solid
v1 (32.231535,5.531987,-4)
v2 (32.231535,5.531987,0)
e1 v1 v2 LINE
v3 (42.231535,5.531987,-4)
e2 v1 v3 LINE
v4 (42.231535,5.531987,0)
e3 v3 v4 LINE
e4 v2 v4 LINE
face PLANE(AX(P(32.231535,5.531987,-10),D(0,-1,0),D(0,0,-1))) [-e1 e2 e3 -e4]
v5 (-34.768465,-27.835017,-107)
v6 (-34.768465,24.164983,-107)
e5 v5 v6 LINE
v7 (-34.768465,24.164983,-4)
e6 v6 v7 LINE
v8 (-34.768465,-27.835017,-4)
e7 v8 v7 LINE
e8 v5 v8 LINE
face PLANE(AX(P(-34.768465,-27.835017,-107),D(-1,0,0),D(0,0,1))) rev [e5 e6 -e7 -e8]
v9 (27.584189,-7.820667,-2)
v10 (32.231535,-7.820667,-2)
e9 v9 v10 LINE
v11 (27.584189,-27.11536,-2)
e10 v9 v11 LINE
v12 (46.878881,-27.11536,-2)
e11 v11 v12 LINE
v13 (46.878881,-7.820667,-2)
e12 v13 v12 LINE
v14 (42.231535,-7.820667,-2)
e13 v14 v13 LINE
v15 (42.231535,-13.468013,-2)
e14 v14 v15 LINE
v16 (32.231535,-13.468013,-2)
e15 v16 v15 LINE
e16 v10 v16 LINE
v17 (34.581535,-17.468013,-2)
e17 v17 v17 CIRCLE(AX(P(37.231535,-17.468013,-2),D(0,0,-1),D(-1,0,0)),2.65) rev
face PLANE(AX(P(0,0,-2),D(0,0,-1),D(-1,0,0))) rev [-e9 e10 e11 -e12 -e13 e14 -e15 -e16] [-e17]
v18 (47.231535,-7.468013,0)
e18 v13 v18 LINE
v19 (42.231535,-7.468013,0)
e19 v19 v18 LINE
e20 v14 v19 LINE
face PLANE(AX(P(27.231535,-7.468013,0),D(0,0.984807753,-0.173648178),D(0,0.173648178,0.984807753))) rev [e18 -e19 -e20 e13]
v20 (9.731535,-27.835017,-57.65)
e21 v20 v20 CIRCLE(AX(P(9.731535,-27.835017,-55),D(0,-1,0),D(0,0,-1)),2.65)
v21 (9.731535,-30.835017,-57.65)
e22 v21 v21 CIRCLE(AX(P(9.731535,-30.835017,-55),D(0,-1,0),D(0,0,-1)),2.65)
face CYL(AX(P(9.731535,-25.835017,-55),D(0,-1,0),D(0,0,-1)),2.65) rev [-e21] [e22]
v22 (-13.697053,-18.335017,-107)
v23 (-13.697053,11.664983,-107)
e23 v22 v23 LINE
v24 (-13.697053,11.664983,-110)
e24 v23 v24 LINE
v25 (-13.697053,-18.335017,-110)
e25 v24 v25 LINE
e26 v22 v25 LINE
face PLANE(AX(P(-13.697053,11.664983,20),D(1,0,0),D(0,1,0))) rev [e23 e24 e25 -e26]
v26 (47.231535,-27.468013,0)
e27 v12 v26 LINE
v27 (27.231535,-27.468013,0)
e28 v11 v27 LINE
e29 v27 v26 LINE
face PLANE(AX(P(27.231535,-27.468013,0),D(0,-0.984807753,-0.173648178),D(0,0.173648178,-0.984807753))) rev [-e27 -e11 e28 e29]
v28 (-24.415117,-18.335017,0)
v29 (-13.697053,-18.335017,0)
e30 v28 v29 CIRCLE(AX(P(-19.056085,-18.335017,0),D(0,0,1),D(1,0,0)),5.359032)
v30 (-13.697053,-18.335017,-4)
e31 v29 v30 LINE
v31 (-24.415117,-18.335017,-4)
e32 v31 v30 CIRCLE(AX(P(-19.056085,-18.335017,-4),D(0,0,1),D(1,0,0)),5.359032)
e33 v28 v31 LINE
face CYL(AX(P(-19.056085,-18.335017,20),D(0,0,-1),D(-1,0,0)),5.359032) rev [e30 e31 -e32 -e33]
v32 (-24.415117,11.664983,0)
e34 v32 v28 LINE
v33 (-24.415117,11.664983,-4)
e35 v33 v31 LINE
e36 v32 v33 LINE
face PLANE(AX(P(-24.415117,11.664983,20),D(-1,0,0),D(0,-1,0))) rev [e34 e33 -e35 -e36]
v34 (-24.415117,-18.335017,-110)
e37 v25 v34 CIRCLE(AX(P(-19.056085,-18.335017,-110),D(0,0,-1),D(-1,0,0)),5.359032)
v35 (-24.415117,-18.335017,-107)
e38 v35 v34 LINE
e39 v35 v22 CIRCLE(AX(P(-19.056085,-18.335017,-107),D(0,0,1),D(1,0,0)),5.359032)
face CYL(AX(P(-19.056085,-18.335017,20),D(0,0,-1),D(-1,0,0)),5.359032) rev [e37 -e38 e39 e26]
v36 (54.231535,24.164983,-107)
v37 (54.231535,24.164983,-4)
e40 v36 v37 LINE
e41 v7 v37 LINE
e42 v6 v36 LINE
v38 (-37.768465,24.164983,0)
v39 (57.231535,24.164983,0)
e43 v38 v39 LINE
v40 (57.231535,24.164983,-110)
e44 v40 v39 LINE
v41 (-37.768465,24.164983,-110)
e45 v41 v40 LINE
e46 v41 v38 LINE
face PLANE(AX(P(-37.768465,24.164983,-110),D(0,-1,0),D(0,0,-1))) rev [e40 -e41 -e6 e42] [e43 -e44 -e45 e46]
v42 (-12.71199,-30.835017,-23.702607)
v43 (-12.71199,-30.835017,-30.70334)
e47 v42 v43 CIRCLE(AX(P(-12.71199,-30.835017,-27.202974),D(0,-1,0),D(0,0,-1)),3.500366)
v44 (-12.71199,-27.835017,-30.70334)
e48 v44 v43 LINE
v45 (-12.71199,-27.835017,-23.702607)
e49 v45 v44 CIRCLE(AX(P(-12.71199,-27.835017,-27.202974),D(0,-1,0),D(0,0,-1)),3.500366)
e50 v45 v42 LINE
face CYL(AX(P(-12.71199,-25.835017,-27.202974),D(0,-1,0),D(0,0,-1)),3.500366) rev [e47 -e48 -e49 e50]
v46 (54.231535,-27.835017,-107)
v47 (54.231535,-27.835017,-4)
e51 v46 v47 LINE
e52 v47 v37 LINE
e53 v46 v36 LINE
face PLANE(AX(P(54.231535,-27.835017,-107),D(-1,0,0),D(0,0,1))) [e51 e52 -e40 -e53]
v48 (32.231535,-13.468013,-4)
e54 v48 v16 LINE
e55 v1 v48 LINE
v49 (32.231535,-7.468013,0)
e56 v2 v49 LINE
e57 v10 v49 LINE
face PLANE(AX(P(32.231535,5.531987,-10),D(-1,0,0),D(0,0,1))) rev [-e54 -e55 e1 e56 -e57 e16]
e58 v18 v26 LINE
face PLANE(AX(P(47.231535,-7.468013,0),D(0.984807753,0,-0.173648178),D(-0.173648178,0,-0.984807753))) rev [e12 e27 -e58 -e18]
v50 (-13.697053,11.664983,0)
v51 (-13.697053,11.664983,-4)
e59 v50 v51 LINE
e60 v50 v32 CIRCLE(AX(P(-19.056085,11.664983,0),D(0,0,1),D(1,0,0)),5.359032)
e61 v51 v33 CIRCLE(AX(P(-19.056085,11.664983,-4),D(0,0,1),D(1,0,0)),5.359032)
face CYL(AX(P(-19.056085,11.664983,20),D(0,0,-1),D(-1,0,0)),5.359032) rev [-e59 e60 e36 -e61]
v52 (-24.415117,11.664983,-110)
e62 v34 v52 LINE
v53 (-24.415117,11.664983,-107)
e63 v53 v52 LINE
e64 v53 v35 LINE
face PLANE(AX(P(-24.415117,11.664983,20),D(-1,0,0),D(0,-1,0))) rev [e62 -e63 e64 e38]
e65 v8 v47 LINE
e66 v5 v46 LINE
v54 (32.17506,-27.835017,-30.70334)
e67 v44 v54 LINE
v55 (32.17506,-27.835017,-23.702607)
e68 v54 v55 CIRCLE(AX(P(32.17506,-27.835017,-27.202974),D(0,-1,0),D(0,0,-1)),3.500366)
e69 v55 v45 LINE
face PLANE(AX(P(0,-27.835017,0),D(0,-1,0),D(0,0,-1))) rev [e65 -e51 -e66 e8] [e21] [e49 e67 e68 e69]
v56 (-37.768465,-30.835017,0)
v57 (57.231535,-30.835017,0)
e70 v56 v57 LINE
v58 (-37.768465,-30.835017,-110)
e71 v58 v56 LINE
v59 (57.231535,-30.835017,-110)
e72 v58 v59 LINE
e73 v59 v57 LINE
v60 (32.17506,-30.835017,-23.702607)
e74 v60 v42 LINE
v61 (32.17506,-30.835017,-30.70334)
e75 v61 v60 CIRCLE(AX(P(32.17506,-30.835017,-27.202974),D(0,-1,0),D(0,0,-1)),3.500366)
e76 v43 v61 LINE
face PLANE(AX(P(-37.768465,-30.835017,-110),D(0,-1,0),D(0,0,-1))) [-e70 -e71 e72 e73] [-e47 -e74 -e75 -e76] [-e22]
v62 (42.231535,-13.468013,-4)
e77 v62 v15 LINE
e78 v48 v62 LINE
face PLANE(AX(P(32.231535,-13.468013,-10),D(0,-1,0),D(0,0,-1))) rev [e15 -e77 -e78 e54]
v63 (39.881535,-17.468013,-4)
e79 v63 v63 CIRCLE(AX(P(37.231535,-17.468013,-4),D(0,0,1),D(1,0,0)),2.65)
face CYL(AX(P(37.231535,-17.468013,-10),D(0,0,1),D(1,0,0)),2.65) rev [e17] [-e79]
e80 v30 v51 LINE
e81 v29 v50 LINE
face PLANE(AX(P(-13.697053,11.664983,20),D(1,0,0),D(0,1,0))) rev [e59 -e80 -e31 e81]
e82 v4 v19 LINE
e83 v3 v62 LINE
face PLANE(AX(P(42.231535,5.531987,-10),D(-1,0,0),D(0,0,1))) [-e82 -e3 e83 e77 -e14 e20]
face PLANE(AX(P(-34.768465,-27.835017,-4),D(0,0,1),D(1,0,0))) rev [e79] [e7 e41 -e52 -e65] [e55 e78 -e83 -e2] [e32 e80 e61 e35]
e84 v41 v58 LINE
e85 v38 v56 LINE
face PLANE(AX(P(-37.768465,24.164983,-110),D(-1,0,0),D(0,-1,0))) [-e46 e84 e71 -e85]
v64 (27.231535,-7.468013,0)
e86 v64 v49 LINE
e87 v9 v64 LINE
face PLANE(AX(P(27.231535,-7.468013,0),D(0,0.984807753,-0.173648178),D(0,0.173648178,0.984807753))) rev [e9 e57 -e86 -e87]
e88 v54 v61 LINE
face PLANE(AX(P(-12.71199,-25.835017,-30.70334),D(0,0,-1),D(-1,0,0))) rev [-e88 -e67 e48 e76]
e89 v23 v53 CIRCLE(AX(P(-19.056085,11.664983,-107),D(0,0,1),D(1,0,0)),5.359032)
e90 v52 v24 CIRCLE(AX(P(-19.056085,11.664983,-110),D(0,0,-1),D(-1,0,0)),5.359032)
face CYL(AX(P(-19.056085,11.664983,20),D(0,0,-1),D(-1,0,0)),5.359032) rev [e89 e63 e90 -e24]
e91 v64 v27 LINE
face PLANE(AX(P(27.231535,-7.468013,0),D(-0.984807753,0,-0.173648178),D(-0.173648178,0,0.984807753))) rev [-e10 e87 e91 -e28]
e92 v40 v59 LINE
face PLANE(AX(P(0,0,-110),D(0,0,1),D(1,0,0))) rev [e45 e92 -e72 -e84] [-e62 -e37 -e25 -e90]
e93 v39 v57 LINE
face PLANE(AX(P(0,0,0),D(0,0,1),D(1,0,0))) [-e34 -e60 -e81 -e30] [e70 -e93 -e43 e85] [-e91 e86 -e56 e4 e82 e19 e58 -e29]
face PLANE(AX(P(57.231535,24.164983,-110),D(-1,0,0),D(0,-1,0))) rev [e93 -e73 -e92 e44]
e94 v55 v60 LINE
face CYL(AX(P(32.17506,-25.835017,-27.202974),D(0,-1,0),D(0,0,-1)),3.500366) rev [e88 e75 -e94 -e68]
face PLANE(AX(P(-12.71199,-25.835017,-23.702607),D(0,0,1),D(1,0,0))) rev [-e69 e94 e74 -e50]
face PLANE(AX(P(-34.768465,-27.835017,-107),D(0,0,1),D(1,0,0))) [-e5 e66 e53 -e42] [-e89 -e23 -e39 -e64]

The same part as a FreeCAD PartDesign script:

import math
import FreeCAD as App
import Part
import Sketcher

V = App.Vector
Q = App.Units.Quantity


def faces_at(feature, points):
    """Names of the faces that lie closest to the given points."""
    faces = feature.Shape.Faces
    near = lambda p: min(range(len(faces)), key=lambda i: faces[i].distToShape(Part.Vertex(*p))[0])
    return sorted({f"Face{near(p) + 1}" for p in points})


def add_polygon(sketch, points):
    """Adds a closed chain of lines whose ends are joined by coincident constraints."""
    first, n = sketch.GeometryCount, len(points)
    for a, b in zip(points, points[1:] + points[:1]):
        sketch.addGeometry(Part.LineSegment(App.Vector(*a, 0), App.Vector(*b, 0)), False)
    for i in range(n):
        sketch.addConstraint(Sketcher.Constraint("Coincident", first + i, 2, first + (i + 1) % n, 1))

doc = App.newDocument("Part")
body = doc.addObject("PartDesign::Body", "Body")

sketch1 = body.newObject("Sketcher::SketchObject", "Sketch")
sketch1.AttachmentSupport = (doc.getObject("XY_Plane"), [""])
sketch1.MapMode = "FlatFace"
add_polygon(sketch1, [(-38, 24), (-38, -31), (57, -31), (57, 24)])
sketch1.addConstraint([
    Sketcher.Constraint("Vertical", 0),
    Sketcher.Constraint("Horizontal", 1),
    Sketcher.Constraint("Vertical", 2),
    Sketcher.Constraint("Horizontal", 3),
    Sketcher.Constraint("DistanceX", 1, 1, 1, 2, Q("95 mm")),
    Sketcher.Constraint("DistanceY", 0, 2, 0, 1, Q("55 mm")),
    Sketcher.Constraint("DistanceX", 0, 2, -1, 1, Q("37.768465 mm")),
    Sketcher.Constraint("DistanceY", 0, 2, -1, 1, Q("30.835017 mm")),
])
pad1 = body.newObject("PartDesign::Pad", "Pad")
pad1.Profile = sketch1
pad1.Length = 110
pad1.Reversed = True

sketch2 = body.newObject("Sketcher::SketchObject", "Sketch001")
sketch2.AttachmentSupport = (doc.getObject("XZ_Plane"), [""])
sketch2.MapMode = "FlatFace"
sketch2.AttachmentOffset = App.Placement(V(0, 0, -24.164983), App.Rotation())
add_polygon(sketch2, [(-35, -107), (-35, -4), (54, -4), (54, -107)])
sketch2.addConstraint([
    Sketcher.Constraint("Vertical", 0),
    Sketcher.Constraint("Horizontal", 1),
    Sketcher.Constraint("Vertical", 2),
    Sketcher.Constraint("Horizontal", 3),
    Sketcher.Constraint("DistanceX", 1, 1, 1, 2, Q("89 mm")),
    Sketcher.Constraint("DistanceY", 0, 1, 0, 2, Q("103 mm")),
    Sketcher.Constraint("DistanceY", 0, 2, -1, 1, Q("4 mm")),
    Sketcher.Constraint("DistanceX", 0, 2, -1, 1, Q("34.768465 mm")),
])
pocket1 = body.newObject("PartDesign::Pocket", "Pocket")
pocket1.Profile = sketch2
pocket1.Length = 52
pocket1.Reversed = True

sketch3 = body.newObject("Sketcher::SketchObject", "Sketch002")
sketch3.AttachmentSupport = (doc.getObject("XY_Plane"), [""])
sketch3.MapMode = "FlatFace"
add_polygon(sketch3, [(32, 6), (32, -13), (42, -13), (42, 6)])
sketch3.addConstraint([
    Sketcher.Constraint("Vertical", 0),
    Sketcher.Constraint("Horizontal", 1),
    Sketcher.Constraint("Vertical", 2),
    Sketcher.Constraint("Horizontal", 3),
    Sketcher.Constraint("DistanceX", 1, 1, 1, 2, Q("10 mm")),
    Sketcher.Constraint("DistanceY", 0, 2, 0, 1, Q("19 mm")),
    Sketcher.Constraint("DistanceX", -1, 1, 0, 2, Q("32.231535 mm")),
    Sketcher.Constraint("DistanceY", 0, 2, -1, 1, Q("13.468013 mm")),
])
pocket2 = body.newObject("PartDesign::Pocket", "Pocket001")
pocket2.Profile = sketch3
pocket2.Length = 10

sketch4 = body.newObject("Sketcher::SketchObject", "Sketch003")
sketch4.AttachmentSupport = (doc.getObject("XY_Plane"), [""])
sketch4.MapMode = "FlatFace"
sketch4.addGeometry(Part.Circle(V(37.2, -17.5, 0), V(0, 0, 1), 2.6), False)
sketch4.addConstraint([
    Sketcher.Constraint("Diameter", 0, Q("5.3 mm")),
    Sketcher.Constraint("DistanceX", -1, 1, 0, 3, Q("37.231535 mm")),
    Sketcher.Constraint("DistanceY", 0, 3, -1, 1, Q("17.468013 mm")),
])
pocket3 = body.newObject("PartDesign::Pocket", "Pocket002")
pocket3.Profile = sketch4
pocket3.Length = 10
body2 = doc.addObject("PartDesign::Body", "Body001")

sketch5 = body2.newObject("Sketcher::SketchObject", "Sketch004")
sketch5.AttachmentSupport = (doc.getObject("XY_Plane001"), [""])
sketch5.MapMode = "FlatFace"
add_polygon(sketch5, [(27, -7), (27, -27), (47, -27), (47, -7)])
sketch5.addConstraint([
    Sketcher.Constraint("Vertical", 0),
    Sketcher.Constraint("Horizontal", 1),
    Sketcher.Constraint("Vertical", 2),
    Sketcher.Constraint("Horizontal", 3),
    Sketcher.Constraint("Equal", 3, 0),
    Sketcher.Constraint("DistanceX", 1, 1, 1, 2, Q("20 mm")),
    Sketcher.Constraint("DistanceX", -1, 1, 0, 2, Q("27.231535 mm")),
    Sketcher.Constraint("DistanceY", 0, 2, -1, 1, Q("27.468013 mm")),
])
pad2 = body2.newObject("PartDesign::Pad", "Pad001")
pad2.Profile = sketch5
pad2.Length = 2
pad2.Reversed = True
doc.recompute()

draft = body2.newObject("PartDesign::Draft", "Draft")
draft.Base = (pad2, faces_at(pad2, [
    (27.232, -17.468, -1),
    (37.232, -27.468, -1),
    (47.232, -17.468, -1),
    (37.232, -7.468, -1),
]))
draft.NeutralPlane = (doc.getObject("XY_Plane001"), [""])
draft.Angle = 10
draft.Reversed = True
doc.recompute()

boolean = body.newObject("PartDesign::Boolean", "Boolean")
boolean.Type = "Cut"
boolean.addObjects([body2])

sketch6 = body.newObject("Sketcher::SketchObject", "Sketch005")
sketch6.AttachmentSupport = (doc.getObject("XZ_Plane"), [""])
sketch6.MapMode = "FlatFace"
sketch6.AttachmentOffset = App.Placement(V(0, 0, 30.835017), App.Rotation())
sketch6.addGeometry([
    Part.Circle(V(9.7, -55, 0), V(0, 0, 1), 2.6),
    Part.LineSegment(V(32.2, -23.7, 0), V(-12.7, -23.7, 0)),
    Part.ArcOfCircle(Part.Circle(V(-12.7, -27.2, 0), V(0, 0, 1), 3.5), math.radians(90), math.radians(270)),
    Part.LineSegment(V(-12.7, -30.7, 0), V(32.2, -30.7, 0)),
    Part.ArcOfCircle(Part.Circle(V(32.2, -27.2, 0), V(0, 0, 1), 3.5), math.radians(-90), math.radians(90)),
], False)
sketch6.addConstraint([
    Sketcher.Constraint("Tangent", 1, 2, 2, 1),
    Sketcher.Constraint("Tangent", 2, 2, 3, 1),
    Sketcher.Constraint("Tangent", 3, 2, 4, 1),
    Sketcher.Constraint("Tangent", 4, 2, 1, 1),
    Sketcher.Constraint("Horizontal", 1),
    Sketcher.Constraint("Horizontal", 3),
    Sketcher.Constraint("Diameter", 0, Q("5.3 mm")),
    Sketcher.Constraint("DistanceY", 0, 3, -1, 1, Q("55 mm")),
    Sketcher.Constraint("Radius", 2, Q("3.500366 mm")),
    Sketcher.Constraint("DistanceX", 1, 2, 1, 1, Q("44.88705 mm")),
    Sketcher.Constraint("DistanceX", 2, 3, -1, 1, Q("12.71199 mm")),
    Sketcher.Constraint("DistanceY", 2, 2, -1, 1, Q("30.70334 mm")),
    Sketcher.Constraint("DistanceX", -1, 1, 0, 3, Q("9.731535 mm")),
])
pocket4 = body.newObject("PartDesign::Pocket", "Pocket003")
pocket4.Profile = sketch6
pocket4.Length = 5

sketch7 = body.newObject("Sketcher::SketchObject", "Sketch006")
sketch7.AttachmentSupport = (doc.getObject("XY_Plane"), [""])
sketch7.MapMode = "FlatFace"
sketch7.AttachmentOffset = App.Placement(V(0, 0, -110), App.Rotation())
sketch7.addGeometry([
    Part.LineSegment(V(-24, -18, 0), V(-24, 12, 0)),
    Part.ArcOfCircle(Part.Circle(V(-19, 12, 0), V(0, 0, 1), 5), math.radians(0), math.radians(180)),
    Part.LineSegment(V(-14, 12, 0), V(-14, -18, 0)),
    Part.ArcOfCircle(Part.Circle(V(-19, -18, 0), V(0, 0, 1), 5), math.radians(180), math.radians(360)),
], False)
sketch7.addConstraint([
    Sketcher.Constraint("Tangent", 0, 2, 1, 2),
    Sketcher.Constraint("Tangent", 1, 1, 2, 1),
    Sketcher.Constraint("Tangent", 2, 2, 3, 2),
    Sketcher.Constraint("Tangent", 3, 1, 0, 1),
    Sketcher.Constraint("Vertical", 0),
    Sketcher.Constraint("Vertical", 2),
    Sketcher.Constraint("DistanceY", 0, 1, 0, 2, Q("30 mm")),
    Sketcher.Constraint("Radius", 1, Q("5.359032 mm")),
    Sketcher.Constraint("DistanceX", 1, 3, -1, 1, Q("19.056085 mm")),
    Sketcher.Constraint("DistanceY", -1, 1, 1, 3, Q("11.664983 mm")),
])
pocket5 = body.newObject("PartDesign::Pocket", "Pocket004")
pocket5.Profile = sketch7
pocket5.Length = 130
pocket5.Reversed = True

doc.recompute()
